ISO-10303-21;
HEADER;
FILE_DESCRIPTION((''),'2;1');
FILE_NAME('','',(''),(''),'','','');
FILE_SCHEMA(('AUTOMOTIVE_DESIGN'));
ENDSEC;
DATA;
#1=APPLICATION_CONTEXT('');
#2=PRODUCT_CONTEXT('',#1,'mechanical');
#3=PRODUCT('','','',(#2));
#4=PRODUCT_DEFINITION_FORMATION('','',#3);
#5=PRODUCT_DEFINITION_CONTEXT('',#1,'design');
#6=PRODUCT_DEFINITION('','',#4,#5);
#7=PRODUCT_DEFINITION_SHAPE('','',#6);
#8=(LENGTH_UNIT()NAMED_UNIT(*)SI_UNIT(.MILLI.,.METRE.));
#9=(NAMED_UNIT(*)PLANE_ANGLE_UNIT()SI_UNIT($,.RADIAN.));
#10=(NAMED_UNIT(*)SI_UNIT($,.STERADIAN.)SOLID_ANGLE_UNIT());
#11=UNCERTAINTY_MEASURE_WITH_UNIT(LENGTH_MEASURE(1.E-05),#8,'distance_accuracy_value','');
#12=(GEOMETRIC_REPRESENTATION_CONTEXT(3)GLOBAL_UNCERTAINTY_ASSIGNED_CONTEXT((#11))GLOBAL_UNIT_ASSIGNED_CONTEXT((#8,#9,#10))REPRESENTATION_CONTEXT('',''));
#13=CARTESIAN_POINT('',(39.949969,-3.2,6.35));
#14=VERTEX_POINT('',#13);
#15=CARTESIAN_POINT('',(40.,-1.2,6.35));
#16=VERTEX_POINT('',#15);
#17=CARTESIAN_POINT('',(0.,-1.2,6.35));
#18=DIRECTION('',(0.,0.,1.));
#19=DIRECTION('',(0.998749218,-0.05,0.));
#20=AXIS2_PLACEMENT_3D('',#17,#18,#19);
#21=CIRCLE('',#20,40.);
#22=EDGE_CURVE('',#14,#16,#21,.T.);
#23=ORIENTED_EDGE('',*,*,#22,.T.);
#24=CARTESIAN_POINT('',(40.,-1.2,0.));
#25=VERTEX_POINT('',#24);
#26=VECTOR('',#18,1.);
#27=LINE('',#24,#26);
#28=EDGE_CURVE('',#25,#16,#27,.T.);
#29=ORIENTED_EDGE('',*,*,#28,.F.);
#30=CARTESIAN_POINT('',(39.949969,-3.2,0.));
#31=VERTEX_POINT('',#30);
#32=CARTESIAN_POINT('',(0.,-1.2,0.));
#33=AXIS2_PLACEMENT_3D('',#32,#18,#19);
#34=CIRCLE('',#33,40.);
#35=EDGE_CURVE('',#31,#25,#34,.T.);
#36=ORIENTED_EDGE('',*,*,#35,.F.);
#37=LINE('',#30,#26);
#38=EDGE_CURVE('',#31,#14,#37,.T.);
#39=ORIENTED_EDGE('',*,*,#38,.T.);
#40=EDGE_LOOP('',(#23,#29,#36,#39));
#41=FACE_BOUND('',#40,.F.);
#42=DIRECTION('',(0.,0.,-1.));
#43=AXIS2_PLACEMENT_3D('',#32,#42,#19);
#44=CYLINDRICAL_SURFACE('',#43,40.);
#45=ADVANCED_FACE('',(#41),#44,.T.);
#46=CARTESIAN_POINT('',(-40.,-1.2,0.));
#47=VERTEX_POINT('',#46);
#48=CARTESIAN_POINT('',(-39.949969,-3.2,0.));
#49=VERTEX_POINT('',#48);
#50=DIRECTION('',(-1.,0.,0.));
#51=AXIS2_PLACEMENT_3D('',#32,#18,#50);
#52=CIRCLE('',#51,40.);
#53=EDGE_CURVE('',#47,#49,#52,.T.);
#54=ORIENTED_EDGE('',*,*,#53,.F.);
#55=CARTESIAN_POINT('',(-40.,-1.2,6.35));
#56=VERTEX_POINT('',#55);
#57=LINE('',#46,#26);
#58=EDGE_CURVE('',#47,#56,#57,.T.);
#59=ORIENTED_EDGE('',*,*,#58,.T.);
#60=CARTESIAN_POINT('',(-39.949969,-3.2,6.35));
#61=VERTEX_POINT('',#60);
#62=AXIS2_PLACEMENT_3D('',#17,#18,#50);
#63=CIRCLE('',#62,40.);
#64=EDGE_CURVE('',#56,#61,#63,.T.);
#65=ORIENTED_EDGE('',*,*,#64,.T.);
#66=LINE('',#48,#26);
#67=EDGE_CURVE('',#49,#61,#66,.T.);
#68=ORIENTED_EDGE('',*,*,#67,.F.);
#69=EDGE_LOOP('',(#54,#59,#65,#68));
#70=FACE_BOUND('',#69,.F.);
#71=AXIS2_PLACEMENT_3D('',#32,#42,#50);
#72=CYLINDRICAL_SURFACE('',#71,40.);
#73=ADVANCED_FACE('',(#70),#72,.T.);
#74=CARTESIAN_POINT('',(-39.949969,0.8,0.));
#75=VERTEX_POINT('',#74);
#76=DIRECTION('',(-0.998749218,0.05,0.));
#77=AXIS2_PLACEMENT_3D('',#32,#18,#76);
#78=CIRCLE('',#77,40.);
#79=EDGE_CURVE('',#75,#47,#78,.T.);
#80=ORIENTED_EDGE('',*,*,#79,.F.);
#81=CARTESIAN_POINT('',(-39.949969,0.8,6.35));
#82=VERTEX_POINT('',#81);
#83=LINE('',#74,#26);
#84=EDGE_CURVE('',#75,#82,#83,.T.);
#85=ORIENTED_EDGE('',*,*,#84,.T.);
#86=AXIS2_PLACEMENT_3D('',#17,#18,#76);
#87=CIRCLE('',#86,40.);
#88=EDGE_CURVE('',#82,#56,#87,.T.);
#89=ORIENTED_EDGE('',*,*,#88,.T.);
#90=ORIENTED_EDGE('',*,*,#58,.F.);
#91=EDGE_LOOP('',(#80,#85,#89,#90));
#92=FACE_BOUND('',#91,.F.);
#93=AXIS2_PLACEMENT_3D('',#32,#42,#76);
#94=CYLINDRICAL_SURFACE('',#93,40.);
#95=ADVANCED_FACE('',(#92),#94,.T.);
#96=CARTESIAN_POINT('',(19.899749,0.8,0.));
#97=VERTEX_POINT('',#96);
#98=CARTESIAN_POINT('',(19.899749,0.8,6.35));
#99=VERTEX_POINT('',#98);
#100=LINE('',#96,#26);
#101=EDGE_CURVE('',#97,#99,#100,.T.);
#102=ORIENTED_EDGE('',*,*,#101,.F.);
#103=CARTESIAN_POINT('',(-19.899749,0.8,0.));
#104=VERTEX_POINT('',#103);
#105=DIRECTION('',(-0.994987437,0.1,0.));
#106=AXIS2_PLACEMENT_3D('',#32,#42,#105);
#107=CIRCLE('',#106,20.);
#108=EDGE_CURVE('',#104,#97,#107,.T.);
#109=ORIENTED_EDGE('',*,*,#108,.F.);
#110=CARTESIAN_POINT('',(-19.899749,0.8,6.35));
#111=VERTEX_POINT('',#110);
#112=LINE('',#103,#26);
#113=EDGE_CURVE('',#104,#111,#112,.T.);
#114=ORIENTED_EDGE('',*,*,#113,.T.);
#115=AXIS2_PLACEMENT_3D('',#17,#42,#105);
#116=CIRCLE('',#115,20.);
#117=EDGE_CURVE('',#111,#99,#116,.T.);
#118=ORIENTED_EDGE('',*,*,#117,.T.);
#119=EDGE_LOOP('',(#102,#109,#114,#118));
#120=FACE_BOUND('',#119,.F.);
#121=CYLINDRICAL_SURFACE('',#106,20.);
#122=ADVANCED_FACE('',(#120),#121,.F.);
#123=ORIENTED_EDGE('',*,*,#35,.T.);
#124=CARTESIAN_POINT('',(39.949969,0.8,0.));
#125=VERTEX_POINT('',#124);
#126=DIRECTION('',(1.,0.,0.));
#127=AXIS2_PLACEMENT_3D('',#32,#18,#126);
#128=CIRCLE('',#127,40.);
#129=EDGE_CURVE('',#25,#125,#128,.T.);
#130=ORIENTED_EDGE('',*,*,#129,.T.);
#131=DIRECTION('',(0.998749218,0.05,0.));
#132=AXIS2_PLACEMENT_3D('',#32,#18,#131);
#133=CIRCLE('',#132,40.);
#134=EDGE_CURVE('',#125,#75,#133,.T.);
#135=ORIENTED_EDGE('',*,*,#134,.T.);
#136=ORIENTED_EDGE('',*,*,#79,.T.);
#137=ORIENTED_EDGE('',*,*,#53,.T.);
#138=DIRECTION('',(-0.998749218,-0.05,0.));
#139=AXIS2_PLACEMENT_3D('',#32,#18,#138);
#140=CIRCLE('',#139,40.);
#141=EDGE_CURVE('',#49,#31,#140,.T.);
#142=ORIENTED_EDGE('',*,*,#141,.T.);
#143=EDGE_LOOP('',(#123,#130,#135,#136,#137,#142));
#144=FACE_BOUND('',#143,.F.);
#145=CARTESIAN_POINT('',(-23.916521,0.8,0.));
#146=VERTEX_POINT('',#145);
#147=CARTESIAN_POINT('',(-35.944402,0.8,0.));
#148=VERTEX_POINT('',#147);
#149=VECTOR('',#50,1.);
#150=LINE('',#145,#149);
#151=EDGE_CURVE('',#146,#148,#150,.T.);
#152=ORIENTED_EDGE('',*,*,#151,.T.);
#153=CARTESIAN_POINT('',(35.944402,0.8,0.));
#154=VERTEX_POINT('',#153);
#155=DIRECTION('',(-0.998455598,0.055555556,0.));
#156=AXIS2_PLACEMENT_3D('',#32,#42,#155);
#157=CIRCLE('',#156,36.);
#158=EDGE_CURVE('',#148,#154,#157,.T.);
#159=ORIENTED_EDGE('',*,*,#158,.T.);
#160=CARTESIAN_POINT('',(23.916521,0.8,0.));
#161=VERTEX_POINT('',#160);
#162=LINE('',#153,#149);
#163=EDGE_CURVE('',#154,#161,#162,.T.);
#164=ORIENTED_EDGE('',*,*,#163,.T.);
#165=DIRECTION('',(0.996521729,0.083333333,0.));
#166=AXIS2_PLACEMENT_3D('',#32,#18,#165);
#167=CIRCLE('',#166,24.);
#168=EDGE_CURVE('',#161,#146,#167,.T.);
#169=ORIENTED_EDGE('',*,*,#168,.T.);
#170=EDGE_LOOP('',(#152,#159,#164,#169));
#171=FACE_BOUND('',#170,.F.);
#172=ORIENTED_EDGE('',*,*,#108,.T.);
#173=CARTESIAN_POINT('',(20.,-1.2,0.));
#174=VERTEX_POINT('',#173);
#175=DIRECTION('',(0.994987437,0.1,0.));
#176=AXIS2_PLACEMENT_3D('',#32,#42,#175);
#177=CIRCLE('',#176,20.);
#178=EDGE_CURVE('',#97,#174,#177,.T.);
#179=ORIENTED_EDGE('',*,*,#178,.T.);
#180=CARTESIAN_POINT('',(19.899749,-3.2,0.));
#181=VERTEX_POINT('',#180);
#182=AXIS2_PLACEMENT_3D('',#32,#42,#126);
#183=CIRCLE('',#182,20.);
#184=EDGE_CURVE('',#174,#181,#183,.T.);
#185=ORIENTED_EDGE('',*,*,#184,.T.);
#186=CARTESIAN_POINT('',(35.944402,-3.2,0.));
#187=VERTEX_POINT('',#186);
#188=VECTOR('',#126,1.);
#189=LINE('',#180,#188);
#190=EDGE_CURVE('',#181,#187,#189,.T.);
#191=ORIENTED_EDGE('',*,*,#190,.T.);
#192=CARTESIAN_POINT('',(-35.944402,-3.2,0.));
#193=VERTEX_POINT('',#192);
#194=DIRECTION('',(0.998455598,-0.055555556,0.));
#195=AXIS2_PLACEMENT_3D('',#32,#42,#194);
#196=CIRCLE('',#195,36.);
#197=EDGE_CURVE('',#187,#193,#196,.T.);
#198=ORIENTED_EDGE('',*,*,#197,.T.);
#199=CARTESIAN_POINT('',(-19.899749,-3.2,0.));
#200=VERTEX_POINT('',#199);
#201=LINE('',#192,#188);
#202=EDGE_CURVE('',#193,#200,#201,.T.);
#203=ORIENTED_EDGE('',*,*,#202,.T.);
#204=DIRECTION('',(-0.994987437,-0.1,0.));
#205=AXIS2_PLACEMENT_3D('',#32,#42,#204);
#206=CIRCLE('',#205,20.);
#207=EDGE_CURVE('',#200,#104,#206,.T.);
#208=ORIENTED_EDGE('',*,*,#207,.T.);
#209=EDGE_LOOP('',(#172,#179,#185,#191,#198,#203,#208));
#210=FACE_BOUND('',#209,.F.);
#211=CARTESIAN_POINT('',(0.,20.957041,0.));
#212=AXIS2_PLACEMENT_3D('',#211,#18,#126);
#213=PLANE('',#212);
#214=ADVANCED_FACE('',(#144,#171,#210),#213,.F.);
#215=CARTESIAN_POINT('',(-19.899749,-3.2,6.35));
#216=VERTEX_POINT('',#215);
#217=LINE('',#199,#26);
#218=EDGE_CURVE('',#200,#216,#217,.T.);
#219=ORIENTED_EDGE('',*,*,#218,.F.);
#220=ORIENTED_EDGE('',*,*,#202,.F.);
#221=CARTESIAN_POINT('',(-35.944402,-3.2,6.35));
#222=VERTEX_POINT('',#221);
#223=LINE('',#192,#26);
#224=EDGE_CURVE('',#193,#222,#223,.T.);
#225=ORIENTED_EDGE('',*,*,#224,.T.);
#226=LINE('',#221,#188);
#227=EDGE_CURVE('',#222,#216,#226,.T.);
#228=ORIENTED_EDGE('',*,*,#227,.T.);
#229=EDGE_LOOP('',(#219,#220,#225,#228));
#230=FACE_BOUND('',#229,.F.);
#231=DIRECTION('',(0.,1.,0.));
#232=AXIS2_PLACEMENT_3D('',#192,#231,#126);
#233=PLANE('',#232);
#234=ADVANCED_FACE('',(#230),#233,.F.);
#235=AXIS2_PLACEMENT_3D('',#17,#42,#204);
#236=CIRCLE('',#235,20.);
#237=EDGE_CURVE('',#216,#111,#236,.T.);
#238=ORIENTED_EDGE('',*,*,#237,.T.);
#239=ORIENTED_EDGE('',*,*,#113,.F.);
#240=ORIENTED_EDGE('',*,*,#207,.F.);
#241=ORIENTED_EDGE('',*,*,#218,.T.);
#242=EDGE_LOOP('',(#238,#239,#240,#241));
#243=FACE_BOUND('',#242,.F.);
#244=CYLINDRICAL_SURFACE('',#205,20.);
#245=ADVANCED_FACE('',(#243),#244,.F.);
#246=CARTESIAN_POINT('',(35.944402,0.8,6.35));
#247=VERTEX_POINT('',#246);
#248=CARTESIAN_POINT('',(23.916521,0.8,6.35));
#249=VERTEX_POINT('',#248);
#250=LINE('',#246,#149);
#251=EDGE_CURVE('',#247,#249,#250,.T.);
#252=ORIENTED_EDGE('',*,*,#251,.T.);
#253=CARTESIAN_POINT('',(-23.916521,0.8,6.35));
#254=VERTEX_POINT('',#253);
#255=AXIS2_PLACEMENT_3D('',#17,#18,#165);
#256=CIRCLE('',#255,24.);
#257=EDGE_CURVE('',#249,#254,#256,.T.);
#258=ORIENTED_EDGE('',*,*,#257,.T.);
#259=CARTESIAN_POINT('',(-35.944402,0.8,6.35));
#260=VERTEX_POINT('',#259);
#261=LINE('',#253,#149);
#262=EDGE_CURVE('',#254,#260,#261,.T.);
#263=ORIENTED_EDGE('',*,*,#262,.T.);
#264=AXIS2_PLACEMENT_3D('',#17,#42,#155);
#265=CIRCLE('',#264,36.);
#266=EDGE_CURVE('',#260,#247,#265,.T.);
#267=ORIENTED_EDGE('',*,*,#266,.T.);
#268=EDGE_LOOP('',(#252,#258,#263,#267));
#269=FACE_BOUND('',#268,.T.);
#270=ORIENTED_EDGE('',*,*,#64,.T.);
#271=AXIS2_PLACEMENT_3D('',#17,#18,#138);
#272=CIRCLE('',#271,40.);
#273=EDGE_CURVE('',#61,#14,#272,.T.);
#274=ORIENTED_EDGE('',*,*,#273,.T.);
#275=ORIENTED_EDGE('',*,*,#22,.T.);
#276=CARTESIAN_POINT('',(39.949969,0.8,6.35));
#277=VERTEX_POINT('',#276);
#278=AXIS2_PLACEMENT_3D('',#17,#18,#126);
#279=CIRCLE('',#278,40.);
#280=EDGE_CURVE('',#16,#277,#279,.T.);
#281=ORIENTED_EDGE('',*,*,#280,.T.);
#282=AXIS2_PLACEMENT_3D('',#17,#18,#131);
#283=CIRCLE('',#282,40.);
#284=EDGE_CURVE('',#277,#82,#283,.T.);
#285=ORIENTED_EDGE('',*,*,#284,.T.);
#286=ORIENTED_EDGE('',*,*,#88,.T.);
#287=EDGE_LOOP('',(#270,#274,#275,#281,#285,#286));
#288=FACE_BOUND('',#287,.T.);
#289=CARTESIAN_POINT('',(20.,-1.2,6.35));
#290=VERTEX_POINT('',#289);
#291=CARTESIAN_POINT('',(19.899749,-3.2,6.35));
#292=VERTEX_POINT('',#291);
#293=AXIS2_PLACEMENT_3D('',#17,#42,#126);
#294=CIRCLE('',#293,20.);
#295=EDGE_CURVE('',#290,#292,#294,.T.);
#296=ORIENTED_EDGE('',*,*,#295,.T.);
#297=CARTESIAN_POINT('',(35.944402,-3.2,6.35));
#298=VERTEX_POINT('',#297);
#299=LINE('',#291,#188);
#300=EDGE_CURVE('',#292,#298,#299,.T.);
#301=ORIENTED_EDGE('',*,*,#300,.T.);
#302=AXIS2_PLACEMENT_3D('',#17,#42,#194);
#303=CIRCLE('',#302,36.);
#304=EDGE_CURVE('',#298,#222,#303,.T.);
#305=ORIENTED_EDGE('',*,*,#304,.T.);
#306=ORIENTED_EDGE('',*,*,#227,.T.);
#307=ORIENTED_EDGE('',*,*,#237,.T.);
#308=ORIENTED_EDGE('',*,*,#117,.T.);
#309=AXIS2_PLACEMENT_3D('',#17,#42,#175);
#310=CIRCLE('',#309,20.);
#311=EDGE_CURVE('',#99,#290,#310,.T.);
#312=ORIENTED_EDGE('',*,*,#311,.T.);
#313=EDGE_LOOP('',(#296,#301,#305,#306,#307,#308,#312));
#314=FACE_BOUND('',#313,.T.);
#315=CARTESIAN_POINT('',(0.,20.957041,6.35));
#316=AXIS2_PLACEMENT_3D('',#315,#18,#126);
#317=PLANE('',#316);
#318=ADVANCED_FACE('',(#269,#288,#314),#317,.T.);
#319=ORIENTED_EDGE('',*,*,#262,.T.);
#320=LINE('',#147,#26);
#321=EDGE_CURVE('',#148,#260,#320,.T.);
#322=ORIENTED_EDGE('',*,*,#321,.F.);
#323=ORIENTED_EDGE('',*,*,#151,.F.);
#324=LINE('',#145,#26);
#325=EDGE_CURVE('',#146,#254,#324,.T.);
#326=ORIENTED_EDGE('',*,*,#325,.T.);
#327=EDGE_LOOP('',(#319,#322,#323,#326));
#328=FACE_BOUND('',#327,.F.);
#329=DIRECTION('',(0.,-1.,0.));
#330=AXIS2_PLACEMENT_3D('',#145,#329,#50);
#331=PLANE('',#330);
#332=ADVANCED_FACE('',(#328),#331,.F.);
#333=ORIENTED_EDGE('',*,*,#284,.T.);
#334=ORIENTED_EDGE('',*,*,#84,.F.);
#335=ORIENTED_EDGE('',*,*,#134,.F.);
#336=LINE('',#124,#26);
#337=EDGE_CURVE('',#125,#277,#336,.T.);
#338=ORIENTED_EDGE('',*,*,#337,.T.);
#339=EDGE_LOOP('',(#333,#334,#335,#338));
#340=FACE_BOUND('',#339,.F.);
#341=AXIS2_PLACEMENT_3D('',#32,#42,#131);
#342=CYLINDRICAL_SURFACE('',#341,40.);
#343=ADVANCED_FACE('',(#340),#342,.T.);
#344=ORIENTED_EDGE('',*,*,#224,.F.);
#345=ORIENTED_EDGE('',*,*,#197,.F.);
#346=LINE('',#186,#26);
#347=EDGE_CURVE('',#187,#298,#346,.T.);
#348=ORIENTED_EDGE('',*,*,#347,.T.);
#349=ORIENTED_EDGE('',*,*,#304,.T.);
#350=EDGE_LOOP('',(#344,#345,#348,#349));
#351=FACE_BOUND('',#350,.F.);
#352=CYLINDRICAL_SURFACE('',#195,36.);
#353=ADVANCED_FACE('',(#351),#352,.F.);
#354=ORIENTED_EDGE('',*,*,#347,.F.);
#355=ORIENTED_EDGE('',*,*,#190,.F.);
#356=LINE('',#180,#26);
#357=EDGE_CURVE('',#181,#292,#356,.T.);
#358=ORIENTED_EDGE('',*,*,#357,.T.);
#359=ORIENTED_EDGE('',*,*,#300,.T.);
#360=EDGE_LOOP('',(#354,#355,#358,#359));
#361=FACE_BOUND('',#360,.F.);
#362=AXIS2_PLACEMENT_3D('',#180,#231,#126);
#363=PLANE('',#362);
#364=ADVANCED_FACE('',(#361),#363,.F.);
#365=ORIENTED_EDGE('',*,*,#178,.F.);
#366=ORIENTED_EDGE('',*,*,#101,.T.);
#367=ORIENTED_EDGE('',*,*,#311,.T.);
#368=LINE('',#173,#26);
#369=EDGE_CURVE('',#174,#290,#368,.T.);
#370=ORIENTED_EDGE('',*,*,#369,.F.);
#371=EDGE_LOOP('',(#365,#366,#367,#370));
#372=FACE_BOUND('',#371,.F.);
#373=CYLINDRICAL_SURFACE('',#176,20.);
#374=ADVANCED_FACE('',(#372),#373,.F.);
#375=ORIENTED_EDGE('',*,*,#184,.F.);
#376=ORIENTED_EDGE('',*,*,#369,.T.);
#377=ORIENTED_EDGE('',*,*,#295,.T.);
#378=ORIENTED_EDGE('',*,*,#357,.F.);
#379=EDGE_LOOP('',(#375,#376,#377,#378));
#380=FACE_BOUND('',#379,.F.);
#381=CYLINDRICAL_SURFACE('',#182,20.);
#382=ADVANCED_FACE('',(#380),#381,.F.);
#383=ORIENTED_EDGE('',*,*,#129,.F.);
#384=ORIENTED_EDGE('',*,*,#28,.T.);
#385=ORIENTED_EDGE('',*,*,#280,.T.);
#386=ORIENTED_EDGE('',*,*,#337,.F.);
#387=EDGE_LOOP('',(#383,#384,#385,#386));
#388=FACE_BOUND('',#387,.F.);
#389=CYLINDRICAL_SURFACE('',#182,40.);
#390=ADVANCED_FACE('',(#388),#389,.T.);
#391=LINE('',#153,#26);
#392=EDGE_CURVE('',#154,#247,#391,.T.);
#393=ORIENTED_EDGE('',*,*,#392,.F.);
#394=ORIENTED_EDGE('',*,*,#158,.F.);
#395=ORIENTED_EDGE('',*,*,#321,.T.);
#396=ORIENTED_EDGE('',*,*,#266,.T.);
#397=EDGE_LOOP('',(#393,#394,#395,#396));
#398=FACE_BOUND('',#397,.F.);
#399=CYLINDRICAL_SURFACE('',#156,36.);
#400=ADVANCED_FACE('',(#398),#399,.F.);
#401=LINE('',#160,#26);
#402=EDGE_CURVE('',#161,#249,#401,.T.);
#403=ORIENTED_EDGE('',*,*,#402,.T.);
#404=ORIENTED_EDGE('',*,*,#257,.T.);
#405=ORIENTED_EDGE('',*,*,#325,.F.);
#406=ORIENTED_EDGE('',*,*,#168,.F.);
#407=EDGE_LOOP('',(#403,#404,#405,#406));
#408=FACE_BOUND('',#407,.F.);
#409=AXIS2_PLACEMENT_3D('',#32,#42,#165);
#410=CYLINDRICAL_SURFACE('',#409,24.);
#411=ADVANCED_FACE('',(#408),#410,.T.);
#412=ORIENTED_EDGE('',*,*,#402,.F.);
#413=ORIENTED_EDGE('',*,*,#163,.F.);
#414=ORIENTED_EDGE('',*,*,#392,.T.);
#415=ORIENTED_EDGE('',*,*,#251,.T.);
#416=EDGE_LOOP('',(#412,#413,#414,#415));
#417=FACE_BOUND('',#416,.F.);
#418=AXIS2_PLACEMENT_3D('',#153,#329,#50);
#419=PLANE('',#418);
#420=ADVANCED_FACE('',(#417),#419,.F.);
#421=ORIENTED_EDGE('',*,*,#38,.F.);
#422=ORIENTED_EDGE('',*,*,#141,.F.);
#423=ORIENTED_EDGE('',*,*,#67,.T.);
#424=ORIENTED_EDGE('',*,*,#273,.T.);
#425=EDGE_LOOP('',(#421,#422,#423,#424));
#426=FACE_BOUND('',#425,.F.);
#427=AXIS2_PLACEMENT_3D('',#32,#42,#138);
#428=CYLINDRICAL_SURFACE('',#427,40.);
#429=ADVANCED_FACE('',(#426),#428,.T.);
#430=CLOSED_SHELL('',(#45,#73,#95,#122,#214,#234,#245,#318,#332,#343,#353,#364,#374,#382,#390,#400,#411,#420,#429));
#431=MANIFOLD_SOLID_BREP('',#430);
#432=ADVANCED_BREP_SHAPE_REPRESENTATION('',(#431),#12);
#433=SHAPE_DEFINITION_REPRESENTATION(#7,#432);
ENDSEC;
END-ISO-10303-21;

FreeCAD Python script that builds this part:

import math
import FreeCAD as App
import Part
import Sketcher

V = App.Vector
Q = App.Units.Quantity

doc = App.newDocument("Part")
body = doc.addObject("PartDesign::Body", "Body")

sketch1 = body.newObject("Sketcher::SketchObject", "Sketch")
sketch1.AttachmentSupport = (doc.getObject("XY_Plane"), [""])
sketch1.MapMode = "FlatFace"
sketch1.addGeometry([
    Part.ArcOfCircle(Part.Circle(V(0, -1.2, 0), V(0, 0, 1), 40), math.radians(3), math.radians(177)),
    Part.ArcOfCircle(Part.Circle(V(0, -1.2, 0), V(0, 0, 1), 40), math.radians(177.13), math.radians(180)),
    Part.ArcOfCircle(Part.Circle(V(0, -1.2, 0), V(0, 0, 1), 40), math.radians(-180), math.radians(-177.13)),
    Part.ArcOfCircle(Part.Circle(V(0, -1.2, 0), V(0, 0, 1), 40), math.radians(-177), math.radians(-3)),
    Part.ArcOfCircle(Part.Circle(V(0, -1.2, 0), V(0, 0, 1), 40), math.radians(-2.87), math.radians(0)),
    Part.ArcOfCircle(Part.Circle(V(0, -1.2, 0), V(0, 0, 1), 40), math.radians(0), math.radians(2.87)),
    Part.ArcOfCircle(Part.Circle(V(0, -1.2, 0), V(0, 0, 1), 36), math.radians(-177), math.radians(-3)),
    Part.LineSegment(V(-35.9, -3.2, 0), V(-19.9, -3.2, 0)),
    Part.ArcOfCircle(Part.Circle(V(0, -1.2, 0), V(0, 0, 1), 20), math.radians(174.26), math.radians(185.74)),
    Part.ArcOfCircle(Part.Circle(V(0, -1.2, 0), V(0, 0, 1), 20), math.radians(6), math.radians(174)),
    Part.ArcOfCircle(Part.Circle(V(0, -1.2, 0), V(0, 0, 1), 20), math.radians(0), math.radians(5.74)),
    Part.ArcOfCircle(Part.Circle(V(0, -1.2, 0), V(0, 0, 1), 20), math.radians(-5.74), math.radians(0)),
    Part.LineSegment(V(19.9, -3.2, 0), V(35.9, -3.2, 0)),
    Part.ArcOfCircle(Part.Circle(V(0, -1.2, 0), V(0, 0, 1), 36), math.radians(3), math.radians(177)),
    Part.LineSegment(V(35.9, 0.8, 0), V(23.9, 0.8, 0)),
    Part.ArcOfCircle(Part.Circle(V(0, -1.2, 0), V(0, 0, 1), 24), math.radians(5), math.radians(175)),
    Part.LineSegment(V(-23.9, 0.8, 0), V(-35.9, 0.8, 0)),
], False)
sketch1.addConstraint([
    Sketcher.Constraint("Tangent", 0, 2, 1, 1),
    Sketcher.Constraint("Tangent", 1, 2, 2, 1),
    Sketcher.Constraint("Tangent", 2, 2, 3, 1),
    Sketcher.Constraint("Tangent", 3, 2, 4, 1),
    Sketcher.Constraint("Tangent", 4, 2, 5, 1),
    Sketcher.Constraint("Coincident", 5, 2, 0, 1),
    Sketcher.Constraint("Coincident", 6, 1, 7, 1),
    Sketcher.Constraint("Coincident", 7, 2, 8, 2),
    Sketcher.Constraint("Tangent", 8, 1, 9, 2),
    Sketcher.Constraint("Tangent", 9, 1, 10, 2),
    Sketcher.Constraint("Tangent", 10, 1, 11, 2),
    Sketcher.Constraint("Coincident", 11, 1, 12, 1),
    Sketcher.Constraint("Coincident", 12, 2, 6, 2),
    Sketcher.Constraint("Coincident", 13, 1, 14, 1),
    Sketcher.Constraint("Coincident", 14, 2, 15, 1),
    Sketcher.Constraint("Coincident", 15, 2, 16, 1),
    Sketcher.Constraint("Coincident", 16, 2, 13, 2),
    Sketcher.Constraint("Horizontal", 7),
    Sketcher.Constraint("Horizontal", 12),
    Sketcher.Constraint("Horizontal", 14),
    Sketcher.Constraint("Horizontal", 16),
    Sketcher.Constraint("Coincident", 2, 3, 0, 3),
    Sketcher.Constraint("Coincident", 5, 3, 0, 3),
    Sketcher.Constraint("Coincident", 6, 3, 0, 3),
    Sketcher.Constraint("Coincident", 8, 3, 0, 3),
    Sketcher.Constraint("Coincident", 10, 3, 0, 3),
    Sketcher.Constraint("Coincident", 13, 3, 0, 3),
    Sketcher.Constraint("Coincident", 15, 3, 0, 3),
    Sketcher.Constraint("Equal", 10, 11),
    Sketcher.Constraint("Equal", 6, 13),
    Sketcher.Constraint("Symmetric", 2, 2, 3, 2, -2),
    Sketcher.Constraint("Horizontal", 15, 3, 1, 2),
    Sketcher.Constraint("Horizontal", 1, 2, 4, 2),
    Sketcher.Constraint("Horizontal", 0, 2, 5, 2),
    Sketcher.Constraint("Horizontal", 3, 2, 6, 1),
    Sketcher.Constraint("Horizontal", 5, 2, 8, 1),
    Sketcher.Constraint("Horizontal", 8, 1, 9, 1),
    Sketcher.Constraint("Horizontal", 4, 2, 10, 1),
    Sketcher.Constraint("Horizontal", 7, 2, 11, 1),
    Sketcher.Constraint("Horizontal", 9, 1, 13, 1),
    Sketcher.Constraint("Horizontal", 14, 2, 15, 2),
    Sketcher.Constraint("Vertical", 0, 2, 2, 2),
    Sketcher.Constraint("Radius", 0, Q("40 mm")),
    Sketcher.Constraint("Radius", 6, Q("36 mm")),
    Sketcher.Constraint("Radius", 8, Q("20 mm")),
    Sketcher.Constraint("Radius", 15, Q("24 mm")),
    Sketcher.Constraint("DistanceY", 4, 3, 0, 2, Q("2 mm")),
    Sketcher.Constraint("DistanceY", 0, 3, -1, 1, Q("1.2 mm")),
])
pad1 = body.newObject("PartDesign::Pad", "Pad")
pad1.Profile = sketch1
pad1.Length = 6.35

doc.recompute()
